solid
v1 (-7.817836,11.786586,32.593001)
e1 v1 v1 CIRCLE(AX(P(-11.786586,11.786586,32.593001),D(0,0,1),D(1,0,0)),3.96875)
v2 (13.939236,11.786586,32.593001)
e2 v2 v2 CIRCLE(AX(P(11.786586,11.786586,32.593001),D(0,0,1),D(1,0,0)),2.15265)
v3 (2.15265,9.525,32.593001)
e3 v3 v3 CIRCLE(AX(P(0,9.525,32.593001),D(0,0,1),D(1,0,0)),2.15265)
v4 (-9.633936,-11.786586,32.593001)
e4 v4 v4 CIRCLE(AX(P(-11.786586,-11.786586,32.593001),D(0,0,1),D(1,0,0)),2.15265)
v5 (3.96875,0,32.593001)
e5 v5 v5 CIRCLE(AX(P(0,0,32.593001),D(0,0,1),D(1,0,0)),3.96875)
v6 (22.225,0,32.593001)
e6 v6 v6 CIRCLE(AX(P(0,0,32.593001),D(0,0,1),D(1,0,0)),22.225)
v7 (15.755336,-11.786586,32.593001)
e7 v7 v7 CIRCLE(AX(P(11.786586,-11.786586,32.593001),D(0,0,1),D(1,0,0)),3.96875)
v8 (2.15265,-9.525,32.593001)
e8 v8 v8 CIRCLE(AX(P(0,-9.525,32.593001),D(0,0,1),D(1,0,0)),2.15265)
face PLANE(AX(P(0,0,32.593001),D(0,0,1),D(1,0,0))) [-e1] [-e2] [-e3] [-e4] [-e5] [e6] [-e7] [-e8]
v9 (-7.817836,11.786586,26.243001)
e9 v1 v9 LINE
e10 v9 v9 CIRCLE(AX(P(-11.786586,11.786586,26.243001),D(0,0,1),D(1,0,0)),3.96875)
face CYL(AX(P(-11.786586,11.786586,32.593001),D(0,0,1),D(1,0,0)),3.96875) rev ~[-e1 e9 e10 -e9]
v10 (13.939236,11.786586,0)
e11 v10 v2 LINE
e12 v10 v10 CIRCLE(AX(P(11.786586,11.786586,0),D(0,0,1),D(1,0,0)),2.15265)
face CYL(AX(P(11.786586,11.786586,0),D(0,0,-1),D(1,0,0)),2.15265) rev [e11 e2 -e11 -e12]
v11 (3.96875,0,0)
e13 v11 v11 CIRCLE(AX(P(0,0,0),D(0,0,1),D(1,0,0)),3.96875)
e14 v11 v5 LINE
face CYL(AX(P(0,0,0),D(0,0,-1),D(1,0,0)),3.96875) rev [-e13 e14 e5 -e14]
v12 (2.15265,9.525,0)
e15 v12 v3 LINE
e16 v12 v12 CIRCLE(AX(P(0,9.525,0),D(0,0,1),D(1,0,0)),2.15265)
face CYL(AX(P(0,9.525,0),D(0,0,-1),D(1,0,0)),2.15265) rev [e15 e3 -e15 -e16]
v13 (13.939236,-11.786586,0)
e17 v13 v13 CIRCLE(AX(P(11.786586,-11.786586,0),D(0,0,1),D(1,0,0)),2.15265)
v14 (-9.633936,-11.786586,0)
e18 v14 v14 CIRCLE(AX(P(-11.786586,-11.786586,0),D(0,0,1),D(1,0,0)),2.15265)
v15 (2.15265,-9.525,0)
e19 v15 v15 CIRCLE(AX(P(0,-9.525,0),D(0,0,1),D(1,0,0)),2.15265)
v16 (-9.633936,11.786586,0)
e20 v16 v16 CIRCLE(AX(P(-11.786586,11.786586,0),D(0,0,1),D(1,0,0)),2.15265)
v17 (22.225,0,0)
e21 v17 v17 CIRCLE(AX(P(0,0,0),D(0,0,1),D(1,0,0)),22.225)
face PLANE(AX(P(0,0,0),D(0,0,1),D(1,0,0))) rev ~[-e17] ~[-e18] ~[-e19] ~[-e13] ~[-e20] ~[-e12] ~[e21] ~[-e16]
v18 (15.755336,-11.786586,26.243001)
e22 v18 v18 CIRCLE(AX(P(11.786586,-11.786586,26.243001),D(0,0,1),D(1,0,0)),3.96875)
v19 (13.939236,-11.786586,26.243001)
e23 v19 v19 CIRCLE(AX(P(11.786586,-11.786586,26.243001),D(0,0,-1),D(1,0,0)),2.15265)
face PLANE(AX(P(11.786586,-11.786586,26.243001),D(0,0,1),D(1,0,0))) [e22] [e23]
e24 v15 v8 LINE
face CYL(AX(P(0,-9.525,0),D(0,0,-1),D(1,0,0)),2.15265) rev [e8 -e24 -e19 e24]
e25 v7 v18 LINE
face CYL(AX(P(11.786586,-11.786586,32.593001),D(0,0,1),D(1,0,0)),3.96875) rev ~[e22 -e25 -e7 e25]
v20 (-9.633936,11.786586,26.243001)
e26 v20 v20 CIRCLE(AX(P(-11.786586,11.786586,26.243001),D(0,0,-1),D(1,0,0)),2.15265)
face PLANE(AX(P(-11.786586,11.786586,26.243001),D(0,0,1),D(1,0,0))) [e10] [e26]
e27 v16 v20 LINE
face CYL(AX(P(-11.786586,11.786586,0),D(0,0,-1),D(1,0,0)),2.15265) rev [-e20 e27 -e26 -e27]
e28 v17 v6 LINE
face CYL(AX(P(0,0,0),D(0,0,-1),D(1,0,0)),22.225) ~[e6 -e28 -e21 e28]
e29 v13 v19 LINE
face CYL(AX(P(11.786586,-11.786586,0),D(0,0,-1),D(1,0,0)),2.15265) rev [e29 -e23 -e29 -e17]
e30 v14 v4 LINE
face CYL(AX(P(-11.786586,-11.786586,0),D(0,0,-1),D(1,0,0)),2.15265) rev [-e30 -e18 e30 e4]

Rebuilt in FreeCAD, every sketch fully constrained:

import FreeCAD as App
import Part
import Sketcher

V = App.Vector
Q = App.Units.Quantity

doc = App.newDocument("Part")
params = doc.addObject("Spreadsheet::Sheet", "Params")
for row, (alias, value) in enumerate([
    ("sketch1_diameter", "1.75 in"),
    ("sketch1_diameter2", "0.3125 in"),
    ("pad1_length", "32.593001 mm"),
    ("sketch2_diameter", "0.3125 in"),
    ("pocket1_length", "0.25 in"),
], start=1):
    params.set(f"A{row}", alias)
    params.set(f"B{row}", "=" + value)
    params.setAlias(f"B{row}", alias)

body = doc.addObject("PartDesign::Body", "Body")

sketch1 = body.newObject("Sketcher::SketchObject", "Sketch")
sketch1.AttachmentSupport = (doc.getObject("XY_Plane"), [""])
sketch1.MapMode = "FlatFace"
sketch1.addGeometry(Part.Circle(V(0, 0, 0), V(0, 0, 1), 22.225), False)
sketch1.addGeometry(Part.Circle(V(-11.786586, -11.786586, 0), V(0, 0, 1), 2.15265), False)
sketch1.addGeometry(Part.Circle(V(0, -9.525, 0), V(0, 0, 1), 2.15265), False)
sketch1.addGeometry(Part.Circle(V(11.786586, -11.786586, 0), V(0, 0, 1), 2.15265), False)
sketch1.addGeometry(Part.Circle(V(0, 0, 0), V(0, 0, 1), 3.96875), False)
sketch1.addGeometry(Part.Circle(V(-11.786586, 11.786586, 0), V(0, 0, 1), 2.15265), False)
sketch1.addGeometry(Part.Circle(V(0, 9.525, 0), V(0, 0, 1), 2.15265), False)
sketch1.addGeometry(Part.Circle(V(11.786586, 11.786586, 0), V(0, 0, 1), 2.15265), False)
sketch1.addConstraint(Sketcher.Constraint("Coincident", 0, 3, -1, 1))
sketch1.addConstraint(Sketcher.Constraint("Coincident", 4, 3, -1, 1))
sketch1.addConstraint(Sketcher.Constraint("Equal", 1, 2))
sketch1.addConstraint(Sketcher.Constraint("Equal", 2, 3))
sketch1.addConstraint(Sketcher.Constraint("Equal", 3, 5))
sketch1.addConstraint(Sketcher.Constraint("Equal", 5, 6))
sketch1.addConstraint(Sketcher.Constraint("Equal", 6, 7))
sketch1.addConstraint(Sketcher.Constraint("Symmetric", 3, 3, 5, 3, -1, 1))
sketch1.addConstraint(Sketcher.Constraint("Symmetric", 2, 3, 6, 3, -1, 1))
sketch1.addConstraint(Sketcher.Constraint("Symmetric", 1, 3, 7, 3, -1, 1))
sketch1.addConstraint(Sketcher.Constraint("Symmetric", 1, 3, 3, 3, -2))
sketch1.addConstraint(Sketcher.Constraint("PointOnObject", 2, 3, -2))
sketch1.addConstraint(Sketcher.Constraint("Diameter", 0, Q("1.75 in")))
sketch1.addConstraint(Sketcher.Constraint("Diameter", 4, Q("0.3125 in")))
sketch1.addConstraint(Sketcher.Constraint("Diameter", 1, Q("0.1695 in")))
sketch1.addConstraint(Sketcher.Constraint("DistanceY", 2, 3, 6, 3, Q("0.75 in")))
sketch1.addConstraint(Sketcher.Constraint("DistanceX", 1, 3, 3, 3, 23.573172))
sketch1.addConstraint(Sketcher.Constraint("DistanceY", 1, 3, 5, 3, 23.573172))
sketch1.setExpression("Constraints[12]", "Params.sketch1_diameter")
sketch1.setExpression("Constraints[13]", "Params.sketch1_diameter2")
pad1 = body.newObject("PartDesign::Pad", "Pad")
pad1.Profile = sketch1
pad1.setExpression("Length", "Params.pad1_length")

sketch2 = body.newObject("Sketcher::SketchObject", "Sketch001")
sketch2.AttachmentSupport = (doc.getObject("XY_Plane"), [""])
sketch2.MapMode = "FlatFace"
sketch2.AttachmentOffset = App.Placement(V(0, 0, 32.593001), App.Rotation())
sketch2.addGeometry(Part.Circle(V(-11.786586, 11.786586, 0), V(0, 0, 1), 3.96875), False)
sketch2.addGeometry(Part.Circle(V(11.786586, -11.786586, 0), V(0, 0, 1), 3.96875), False)
sketch2.addConstraint(Sketcher.Constraint("Equal", 0, 1))
sketch2.addConstraint(Sketcher.Constraint("Symmetric", 0, 3, 1, 3, -1, 1))
sketch2.addConstraint(Sketcher.Constraint("Diameter", 0, Q("0.3125 in")))
sketch2.addConstraint(Sketcher.Constraint("DistanceX", 0, 3, 1, 3, 23.573172))
sketch2.addConstraint(Sketcher.Constraint("DistanceY", 1, 3, 0, 3, 23.573172))
sketch2.setExpression("Constraints[2]", "Params.sketch2_diameter")
pocket1 = body.newObject("PartDesign::Pocket", "Pocket")
pocket1.Profile = sketch2
pocket1.setExpression("Length", "Params.pocket1_length")

doc.recompute()
